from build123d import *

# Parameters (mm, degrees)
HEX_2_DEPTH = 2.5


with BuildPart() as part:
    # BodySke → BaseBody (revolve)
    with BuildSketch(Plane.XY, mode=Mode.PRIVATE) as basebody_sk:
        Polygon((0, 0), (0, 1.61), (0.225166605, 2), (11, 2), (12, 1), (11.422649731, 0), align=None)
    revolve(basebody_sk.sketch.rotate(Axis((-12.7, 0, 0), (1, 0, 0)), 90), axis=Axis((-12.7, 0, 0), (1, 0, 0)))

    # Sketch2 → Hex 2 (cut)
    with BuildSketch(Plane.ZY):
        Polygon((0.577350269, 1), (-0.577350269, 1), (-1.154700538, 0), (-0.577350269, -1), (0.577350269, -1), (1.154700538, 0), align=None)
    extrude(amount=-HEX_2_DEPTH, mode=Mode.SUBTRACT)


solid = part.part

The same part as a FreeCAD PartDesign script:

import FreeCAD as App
import Part
import Sketcher
from FreeCAD import Vector
Q = App.Units.Quantity


def add_polygon(sketch, points):
    """Adds a closed chain of lines whose ends are joined by coincident constraints."""
    first, n = sketch.GeometryCount, len(points)
    for a, b in zip(points, points[1:] + points[:1]):
        sketch.addGeometry(Part.LineSegment(App.Vector(*a, 0), App.Vector(*b, 0)), False)
    for i in range(n):
        sketch.addConstraint(Sketcher.Constraint("Coincident", first + i, 2, first + (i + 1) % n, 1))

doc = App.newDocument("Part")
body = doc.addObject("PartDesign::Body", "Body")

# Sketch on XY plane
sketch1 = body.newObject("Sketcher::SketchObject", "Sketch")
sketch1.AttachmentSupport = (doc.getObject("XY_Plane"), [""])
sketch1.MapMode = "FlatFace"
add_polygon(sketch1, [(0, 1.61), (0, 0), (11.42, 0), (12, 1), (11, 2), (0.23, 2)])  # lines 0-5
sketch1.addConstraint([
    Sketcher.Constraint("Vertical", 0),
    Sketcher.Constraint("Horizontal", 1),
    Sketcher.Constraint("Horizontal", 4),
    Sketcher.Constraint("Coincident", 0, 2, -1, 1),
    Sketcher.Constraint("Parallel", 2, 5),
    Sketcher.Constraint("Angle", 2, Q("60 deg")),
    Sketcher.Constraint("Angle", 3, Q("135 deg")),
    Sketcher.Constraint("DistanceX", -1, 1, 2, 2, Q("12 mm")),
    Sketcher.Constraint("DistanceY", -1, 1, 2, 2, Q("1 mm")),
    Sketcher.Constraint("DistanceX", -1, 1, 3, 2, Q("11 mm")),
    Sketcher.Constraint("DistanceY", 0, 2, 0, 1, Q("1.61 mm")),
])
revolution = body.newObject("PartDesign::Revolution", "Revolution")
revolution.Profile = sketch1
revolution.ReferenceAxis = (sketch1, ["H_Axis"])
revolution.Angle = 360

# Sketch on YZ plane
sketch2 = body.newObject("Sketcher::SketchObject", "Sketch001")
sketch2.AttachmentSupport = (doc.getObject("YZ_Plane"), [""])
sketch2.MapMode = "FlatFace"
add_polygon(sketch2, [(1, 0.6), (1, -0.6), (0, -1.2), (-1, -0.6), (-1, 0.6), (0, 1.2)])  # lines 0-5
sketch2.addConstraint([
    Sketcher.Constraint("Vertical", 0),
    Sketcher.Constraint("Vertical", 3),
    Sketcher.Constraint("Symmetric", 0, 2, 3, 2, -1, 1),
    Sketcher.Constraint("Symmetric", 1, 2, 4, 2, -1, 1),
    Sketcher.Constraint("PointOnObject", 1, 2, -2),
    Sketcher.Constraint("Parallel", 2, 5),
    Sketcher.Constraint("Horizontal", 0, 2, 2, 2),
    Sketcher.Constraint("Angle", 1, Q("-150 deg")),
    Sketcher.Constraint("DistanceX", -1, 1, 0, 2, Q("1 mm")),
    Sketcher.Constraint("DistanceY", 0, 2, 0, 1, Q("1.154701 mm")),
])
pocket1 = body.newObject("PartDesign::Pocket", "Pocket")
pocket1.Profile = sketch2
pocket1.Length = 2.5
pocket1.Reversed = True

doc.recompute()
